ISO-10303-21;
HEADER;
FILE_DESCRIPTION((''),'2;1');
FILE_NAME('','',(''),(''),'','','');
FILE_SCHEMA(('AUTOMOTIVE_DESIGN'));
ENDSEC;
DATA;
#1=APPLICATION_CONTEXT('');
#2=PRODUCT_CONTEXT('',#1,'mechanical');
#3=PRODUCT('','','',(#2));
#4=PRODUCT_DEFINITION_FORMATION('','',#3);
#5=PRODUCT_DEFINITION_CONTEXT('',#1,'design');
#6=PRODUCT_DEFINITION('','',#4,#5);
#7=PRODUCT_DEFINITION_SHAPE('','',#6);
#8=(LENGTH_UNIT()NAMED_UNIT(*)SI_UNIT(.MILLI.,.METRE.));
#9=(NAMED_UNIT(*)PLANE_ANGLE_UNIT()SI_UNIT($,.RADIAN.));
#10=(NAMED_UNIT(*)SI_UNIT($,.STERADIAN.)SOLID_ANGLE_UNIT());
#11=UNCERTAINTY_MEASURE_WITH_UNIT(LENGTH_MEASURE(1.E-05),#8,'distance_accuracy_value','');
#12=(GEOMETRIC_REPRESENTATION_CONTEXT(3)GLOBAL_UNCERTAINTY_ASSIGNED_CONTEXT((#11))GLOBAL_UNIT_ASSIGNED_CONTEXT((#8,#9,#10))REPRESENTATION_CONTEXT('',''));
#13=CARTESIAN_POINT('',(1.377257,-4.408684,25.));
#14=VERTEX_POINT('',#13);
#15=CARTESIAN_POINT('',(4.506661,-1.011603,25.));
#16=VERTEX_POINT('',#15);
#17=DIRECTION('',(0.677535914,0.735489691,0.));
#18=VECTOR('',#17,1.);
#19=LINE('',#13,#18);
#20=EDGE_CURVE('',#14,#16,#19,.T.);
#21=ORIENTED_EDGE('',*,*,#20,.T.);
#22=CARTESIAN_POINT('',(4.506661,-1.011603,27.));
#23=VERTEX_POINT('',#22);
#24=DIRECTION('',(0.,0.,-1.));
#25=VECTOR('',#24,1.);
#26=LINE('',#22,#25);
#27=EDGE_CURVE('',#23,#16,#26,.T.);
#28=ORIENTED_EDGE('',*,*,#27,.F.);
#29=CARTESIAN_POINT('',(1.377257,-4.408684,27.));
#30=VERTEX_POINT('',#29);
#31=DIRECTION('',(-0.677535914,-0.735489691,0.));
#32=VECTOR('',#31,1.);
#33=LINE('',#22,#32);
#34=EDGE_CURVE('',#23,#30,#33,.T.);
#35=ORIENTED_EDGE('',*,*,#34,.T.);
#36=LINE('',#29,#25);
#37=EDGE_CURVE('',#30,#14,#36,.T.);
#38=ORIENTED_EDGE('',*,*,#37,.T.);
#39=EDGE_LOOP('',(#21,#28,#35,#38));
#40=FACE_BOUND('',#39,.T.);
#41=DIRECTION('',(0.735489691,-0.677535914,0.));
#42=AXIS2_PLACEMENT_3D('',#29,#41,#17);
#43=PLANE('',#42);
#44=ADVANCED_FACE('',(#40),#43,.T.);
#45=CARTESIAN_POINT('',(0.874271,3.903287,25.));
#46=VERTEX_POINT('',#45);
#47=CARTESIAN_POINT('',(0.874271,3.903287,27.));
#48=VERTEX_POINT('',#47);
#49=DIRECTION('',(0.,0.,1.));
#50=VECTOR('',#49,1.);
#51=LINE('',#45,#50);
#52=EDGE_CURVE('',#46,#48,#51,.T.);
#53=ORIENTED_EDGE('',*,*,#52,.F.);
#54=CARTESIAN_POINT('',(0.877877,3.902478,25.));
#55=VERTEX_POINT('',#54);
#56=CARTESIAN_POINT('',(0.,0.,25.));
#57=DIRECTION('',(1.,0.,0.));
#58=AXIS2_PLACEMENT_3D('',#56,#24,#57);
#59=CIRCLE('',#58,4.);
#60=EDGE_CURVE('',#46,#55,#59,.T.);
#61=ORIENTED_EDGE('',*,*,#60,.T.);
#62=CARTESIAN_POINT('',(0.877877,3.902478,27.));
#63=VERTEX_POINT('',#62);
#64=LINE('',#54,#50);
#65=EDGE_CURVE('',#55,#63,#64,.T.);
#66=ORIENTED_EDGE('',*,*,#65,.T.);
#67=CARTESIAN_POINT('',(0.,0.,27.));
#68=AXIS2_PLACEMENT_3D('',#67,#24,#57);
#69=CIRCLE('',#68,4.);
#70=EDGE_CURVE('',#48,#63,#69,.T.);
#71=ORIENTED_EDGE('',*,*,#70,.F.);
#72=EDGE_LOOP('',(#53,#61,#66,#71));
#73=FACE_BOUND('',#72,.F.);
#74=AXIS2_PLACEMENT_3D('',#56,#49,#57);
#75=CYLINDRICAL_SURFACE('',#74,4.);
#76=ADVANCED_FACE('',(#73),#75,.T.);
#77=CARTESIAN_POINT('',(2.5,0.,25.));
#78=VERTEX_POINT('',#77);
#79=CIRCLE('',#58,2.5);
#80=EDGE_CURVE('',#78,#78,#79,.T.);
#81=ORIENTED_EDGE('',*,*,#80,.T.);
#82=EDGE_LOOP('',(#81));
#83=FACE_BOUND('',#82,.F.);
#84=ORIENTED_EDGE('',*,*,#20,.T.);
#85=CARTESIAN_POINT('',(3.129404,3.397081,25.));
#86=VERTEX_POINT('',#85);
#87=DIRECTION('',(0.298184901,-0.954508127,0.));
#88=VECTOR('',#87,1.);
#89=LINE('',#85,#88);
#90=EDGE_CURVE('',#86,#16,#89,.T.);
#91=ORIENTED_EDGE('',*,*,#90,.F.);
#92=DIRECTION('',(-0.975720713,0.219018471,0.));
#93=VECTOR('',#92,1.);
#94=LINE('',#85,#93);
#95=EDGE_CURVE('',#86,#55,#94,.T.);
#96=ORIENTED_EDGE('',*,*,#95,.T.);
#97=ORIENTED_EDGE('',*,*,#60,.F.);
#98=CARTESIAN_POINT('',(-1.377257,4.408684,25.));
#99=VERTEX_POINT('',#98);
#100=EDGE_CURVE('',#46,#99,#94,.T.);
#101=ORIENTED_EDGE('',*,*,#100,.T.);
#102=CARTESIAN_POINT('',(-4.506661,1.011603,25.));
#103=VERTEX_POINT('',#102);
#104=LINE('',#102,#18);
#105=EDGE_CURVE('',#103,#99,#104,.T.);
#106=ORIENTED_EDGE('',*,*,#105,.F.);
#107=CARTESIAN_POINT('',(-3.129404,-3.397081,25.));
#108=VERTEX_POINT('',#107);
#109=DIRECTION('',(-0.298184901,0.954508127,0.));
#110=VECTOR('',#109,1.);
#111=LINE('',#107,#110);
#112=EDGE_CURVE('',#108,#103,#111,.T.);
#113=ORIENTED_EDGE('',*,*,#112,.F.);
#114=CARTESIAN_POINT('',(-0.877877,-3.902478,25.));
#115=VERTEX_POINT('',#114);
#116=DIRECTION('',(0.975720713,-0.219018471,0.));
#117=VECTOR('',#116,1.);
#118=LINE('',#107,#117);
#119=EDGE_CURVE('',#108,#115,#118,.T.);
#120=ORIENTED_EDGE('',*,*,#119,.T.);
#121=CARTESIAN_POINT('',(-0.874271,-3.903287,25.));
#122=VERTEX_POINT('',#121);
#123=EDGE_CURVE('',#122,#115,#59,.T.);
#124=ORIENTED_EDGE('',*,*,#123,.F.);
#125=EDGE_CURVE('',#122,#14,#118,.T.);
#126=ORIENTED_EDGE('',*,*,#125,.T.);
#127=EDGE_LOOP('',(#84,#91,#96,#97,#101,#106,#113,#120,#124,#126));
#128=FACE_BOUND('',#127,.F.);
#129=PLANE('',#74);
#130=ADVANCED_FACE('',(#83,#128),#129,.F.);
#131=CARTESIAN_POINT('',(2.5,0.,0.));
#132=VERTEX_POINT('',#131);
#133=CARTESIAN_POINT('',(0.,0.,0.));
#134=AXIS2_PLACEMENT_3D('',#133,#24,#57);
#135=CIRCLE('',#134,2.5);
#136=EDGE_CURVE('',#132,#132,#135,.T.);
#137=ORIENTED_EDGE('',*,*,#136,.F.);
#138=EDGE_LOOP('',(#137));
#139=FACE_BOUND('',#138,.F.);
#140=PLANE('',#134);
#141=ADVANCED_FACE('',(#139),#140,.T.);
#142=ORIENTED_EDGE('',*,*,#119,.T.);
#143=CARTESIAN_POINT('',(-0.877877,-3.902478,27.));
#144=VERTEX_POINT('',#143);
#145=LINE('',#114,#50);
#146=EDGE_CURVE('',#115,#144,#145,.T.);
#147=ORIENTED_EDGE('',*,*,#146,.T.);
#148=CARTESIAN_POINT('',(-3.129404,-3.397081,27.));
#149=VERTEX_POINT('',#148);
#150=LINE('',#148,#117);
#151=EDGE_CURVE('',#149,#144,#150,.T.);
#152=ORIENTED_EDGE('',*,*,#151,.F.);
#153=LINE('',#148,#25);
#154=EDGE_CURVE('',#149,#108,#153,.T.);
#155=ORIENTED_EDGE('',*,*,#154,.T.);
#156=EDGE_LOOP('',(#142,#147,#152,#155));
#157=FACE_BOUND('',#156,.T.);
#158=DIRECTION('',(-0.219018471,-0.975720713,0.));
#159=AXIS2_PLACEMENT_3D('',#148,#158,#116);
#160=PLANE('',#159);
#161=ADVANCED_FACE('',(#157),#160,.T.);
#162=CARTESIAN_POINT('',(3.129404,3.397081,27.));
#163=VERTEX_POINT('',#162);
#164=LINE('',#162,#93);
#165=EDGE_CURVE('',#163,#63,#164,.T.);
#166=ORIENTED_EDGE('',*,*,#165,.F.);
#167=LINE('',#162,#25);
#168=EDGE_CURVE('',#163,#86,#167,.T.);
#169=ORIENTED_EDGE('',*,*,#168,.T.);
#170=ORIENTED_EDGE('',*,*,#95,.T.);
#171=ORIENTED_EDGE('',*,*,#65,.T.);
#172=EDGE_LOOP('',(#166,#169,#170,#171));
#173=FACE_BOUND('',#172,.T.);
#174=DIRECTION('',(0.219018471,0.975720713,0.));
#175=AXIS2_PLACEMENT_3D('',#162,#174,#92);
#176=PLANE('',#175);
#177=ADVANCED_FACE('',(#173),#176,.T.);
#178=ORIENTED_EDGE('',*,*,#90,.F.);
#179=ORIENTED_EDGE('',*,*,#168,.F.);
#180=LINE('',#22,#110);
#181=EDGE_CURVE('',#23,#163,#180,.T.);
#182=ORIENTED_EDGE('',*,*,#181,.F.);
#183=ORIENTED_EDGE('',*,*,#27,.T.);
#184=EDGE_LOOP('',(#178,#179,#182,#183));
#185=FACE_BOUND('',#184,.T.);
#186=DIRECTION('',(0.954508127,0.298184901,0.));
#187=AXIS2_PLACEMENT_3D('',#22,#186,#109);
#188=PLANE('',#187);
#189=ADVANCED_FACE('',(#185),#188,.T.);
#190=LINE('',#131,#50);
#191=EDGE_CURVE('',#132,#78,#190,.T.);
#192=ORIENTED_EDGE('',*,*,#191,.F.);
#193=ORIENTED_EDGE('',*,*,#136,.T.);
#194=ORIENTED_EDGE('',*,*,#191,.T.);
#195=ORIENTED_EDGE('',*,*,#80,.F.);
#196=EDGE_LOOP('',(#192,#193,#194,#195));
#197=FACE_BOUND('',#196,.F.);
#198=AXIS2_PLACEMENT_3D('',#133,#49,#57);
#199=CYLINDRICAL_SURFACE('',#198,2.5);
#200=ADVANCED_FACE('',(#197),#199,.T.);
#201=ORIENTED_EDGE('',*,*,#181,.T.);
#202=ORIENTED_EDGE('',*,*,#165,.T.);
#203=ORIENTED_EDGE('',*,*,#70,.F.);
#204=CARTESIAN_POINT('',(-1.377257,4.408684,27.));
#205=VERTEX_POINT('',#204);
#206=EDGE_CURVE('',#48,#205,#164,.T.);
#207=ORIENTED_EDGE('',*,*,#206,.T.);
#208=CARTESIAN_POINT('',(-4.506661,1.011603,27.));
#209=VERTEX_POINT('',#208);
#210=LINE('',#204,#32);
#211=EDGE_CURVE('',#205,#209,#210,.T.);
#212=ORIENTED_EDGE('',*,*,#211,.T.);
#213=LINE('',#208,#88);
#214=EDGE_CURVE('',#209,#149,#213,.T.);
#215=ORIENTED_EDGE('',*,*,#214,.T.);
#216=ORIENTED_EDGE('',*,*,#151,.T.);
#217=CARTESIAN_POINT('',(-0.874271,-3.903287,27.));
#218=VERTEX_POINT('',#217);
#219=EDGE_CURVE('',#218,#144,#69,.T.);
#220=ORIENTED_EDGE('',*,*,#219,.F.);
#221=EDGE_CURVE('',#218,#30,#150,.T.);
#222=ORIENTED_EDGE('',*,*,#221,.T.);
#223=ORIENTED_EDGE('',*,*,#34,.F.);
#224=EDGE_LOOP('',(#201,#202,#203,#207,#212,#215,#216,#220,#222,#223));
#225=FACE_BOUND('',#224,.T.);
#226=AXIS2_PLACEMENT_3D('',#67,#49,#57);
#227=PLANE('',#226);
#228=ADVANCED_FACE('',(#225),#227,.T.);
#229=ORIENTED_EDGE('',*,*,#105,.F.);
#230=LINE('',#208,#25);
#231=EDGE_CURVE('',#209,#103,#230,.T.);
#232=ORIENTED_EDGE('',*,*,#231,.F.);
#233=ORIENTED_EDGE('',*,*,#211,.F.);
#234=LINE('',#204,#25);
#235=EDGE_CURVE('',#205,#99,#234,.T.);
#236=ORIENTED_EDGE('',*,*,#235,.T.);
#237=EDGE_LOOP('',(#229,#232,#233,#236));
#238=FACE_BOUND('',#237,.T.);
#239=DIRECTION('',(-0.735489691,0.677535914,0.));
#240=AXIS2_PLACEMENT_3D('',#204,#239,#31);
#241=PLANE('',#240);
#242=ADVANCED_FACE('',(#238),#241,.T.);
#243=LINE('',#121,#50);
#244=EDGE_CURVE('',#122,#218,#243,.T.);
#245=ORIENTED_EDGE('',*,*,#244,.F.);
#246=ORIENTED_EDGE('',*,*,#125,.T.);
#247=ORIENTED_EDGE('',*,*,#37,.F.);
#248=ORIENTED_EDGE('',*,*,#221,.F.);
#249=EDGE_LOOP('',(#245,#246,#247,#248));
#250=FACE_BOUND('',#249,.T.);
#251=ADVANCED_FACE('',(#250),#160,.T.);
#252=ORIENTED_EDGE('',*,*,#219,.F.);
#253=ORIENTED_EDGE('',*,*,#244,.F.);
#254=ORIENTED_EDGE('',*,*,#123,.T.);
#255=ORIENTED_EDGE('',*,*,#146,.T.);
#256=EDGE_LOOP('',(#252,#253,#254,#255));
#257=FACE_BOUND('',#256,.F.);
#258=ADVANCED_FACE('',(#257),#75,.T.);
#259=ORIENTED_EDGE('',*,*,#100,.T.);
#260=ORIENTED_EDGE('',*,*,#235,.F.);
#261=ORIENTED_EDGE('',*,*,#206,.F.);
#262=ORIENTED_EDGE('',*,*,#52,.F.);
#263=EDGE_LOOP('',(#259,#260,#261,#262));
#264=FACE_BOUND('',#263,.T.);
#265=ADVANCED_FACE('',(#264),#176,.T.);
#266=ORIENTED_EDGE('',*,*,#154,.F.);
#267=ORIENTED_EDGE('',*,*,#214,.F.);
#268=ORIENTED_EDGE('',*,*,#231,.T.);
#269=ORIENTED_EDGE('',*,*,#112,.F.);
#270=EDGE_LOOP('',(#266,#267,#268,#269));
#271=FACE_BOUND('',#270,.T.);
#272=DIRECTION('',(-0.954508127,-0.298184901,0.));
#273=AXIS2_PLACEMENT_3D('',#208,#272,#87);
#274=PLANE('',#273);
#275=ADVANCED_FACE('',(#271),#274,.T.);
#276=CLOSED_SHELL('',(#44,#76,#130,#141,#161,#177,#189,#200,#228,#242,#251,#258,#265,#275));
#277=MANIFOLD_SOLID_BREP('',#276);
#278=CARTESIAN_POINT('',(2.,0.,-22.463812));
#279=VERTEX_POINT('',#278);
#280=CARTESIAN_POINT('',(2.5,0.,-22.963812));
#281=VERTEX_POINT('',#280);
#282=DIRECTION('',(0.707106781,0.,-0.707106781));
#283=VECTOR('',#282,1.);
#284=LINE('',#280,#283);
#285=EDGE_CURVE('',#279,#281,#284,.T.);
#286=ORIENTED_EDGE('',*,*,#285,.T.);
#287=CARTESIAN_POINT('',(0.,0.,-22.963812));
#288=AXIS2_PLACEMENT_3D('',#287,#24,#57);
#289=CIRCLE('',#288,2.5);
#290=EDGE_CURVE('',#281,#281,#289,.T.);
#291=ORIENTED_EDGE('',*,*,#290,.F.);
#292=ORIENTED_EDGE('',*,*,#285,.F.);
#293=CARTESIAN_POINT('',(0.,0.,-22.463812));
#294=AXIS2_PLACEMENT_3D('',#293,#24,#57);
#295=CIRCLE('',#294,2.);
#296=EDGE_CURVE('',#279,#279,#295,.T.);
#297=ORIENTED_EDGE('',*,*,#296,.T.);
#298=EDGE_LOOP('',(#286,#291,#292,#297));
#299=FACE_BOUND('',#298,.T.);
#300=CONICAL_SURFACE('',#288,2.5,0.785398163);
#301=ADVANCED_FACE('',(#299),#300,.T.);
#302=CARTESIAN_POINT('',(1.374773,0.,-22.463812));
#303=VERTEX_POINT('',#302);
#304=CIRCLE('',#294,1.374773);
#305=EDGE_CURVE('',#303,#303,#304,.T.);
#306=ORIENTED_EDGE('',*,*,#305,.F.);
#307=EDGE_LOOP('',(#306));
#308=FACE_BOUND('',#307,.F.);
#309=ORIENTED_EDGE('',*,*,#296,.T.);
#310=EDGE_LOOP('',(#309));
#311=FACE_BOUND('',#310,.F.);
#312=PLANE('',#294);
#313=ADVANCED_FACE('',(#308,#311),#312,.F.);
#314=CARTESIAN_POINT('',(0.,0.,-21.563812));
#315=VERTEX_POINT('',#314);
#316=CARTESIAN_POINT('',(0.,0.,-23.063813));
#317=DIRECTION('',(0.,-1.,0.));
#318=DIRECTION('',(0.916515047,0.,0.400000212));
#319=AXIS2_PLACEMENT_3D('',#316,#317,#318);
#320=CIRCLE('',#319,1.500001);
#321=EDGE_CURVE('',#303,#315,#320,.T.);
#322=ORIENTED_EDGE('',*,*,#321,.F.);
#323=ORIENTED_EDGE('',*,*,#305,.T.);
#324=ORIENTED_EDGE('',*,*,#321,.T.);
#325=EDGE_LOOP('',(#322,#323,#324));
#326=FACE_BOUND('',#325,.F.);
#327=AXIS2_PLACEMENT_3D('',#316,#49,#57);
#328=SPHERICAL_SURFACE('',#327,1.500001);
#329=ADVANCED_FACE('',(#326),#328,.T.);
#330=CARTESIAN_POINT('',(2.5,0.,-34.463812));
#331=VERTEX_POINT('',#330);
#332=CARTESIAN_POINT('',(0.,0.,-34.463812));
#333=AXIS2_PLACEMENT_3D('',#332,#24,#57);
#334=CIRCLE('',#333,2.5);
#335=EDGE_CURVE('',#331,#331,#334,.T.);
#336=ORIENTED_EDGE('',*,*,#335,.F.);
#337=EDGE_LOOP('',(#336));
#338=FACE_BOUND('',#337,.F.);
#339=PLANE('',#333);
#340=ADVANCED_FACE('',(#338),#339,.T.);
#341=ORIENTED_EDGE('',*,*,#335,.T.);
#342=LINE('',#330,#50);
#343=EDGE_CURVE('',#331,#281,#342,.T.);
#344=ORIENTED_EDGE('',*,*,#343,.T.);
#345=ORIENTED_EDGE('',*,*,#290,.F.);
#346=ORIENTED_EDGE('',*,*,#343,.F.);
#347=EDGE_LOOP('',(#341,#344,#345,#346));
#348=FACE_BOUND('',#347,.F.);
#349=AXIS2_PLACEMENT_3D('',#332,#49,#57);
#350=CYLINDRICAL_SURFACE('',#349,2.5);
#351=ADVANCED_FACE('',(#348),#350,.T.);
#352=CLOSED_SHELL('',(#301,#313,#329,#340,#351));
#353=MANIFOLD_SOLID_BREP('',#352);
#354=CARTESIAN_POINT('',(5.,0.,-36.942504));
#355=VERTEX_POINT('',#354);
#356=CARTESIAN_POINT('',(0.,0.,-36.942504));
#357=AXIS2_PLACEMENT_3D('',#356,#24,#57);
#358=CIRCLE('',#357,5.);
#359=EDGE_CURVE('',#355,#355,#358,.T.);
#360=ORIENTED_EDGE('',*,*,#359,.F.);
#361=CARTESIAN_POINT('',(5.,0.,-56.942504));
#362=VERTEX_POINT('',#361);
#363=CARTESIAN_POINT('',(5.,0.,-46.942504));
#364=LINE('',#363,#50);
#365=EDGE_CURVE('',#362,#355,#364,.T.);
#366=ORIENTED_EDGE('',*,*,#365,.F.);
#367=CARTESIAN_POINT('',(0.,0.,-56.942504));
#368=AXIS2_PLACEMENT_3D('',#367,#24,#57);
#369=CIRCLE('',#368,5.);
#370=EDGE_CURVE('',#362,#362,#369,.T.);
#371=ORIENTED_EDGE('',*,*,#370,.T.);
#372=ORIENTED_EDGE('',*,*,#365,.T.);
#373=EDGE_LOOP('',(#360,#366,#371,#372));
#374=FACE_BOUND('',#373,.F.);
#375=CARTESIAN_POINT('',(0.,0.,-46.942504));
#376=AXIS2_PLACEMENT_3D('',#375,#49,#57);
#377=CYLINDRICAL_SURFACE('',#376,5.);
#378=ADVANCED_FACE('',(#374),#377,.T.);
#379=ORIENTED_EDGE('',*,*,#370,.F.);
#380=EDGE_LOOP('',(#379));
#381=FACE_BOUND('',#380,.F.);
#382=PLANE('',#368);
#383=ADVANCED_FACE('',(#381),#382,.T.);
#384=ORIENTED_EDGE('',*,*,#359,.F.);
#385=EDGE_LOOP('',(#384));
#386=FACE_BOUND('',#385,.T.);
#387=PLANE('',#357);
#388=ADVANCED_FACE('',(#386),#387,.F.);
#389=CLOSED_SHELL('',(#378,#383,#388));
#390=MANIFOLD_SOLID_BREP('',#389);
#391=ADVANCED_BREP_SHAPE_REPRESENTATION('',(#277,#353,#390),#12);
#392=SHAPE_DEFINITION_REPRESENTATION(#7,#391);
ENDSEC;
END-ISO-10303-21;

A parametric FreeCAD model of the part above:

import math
import FreeCAD as App
import Part
import Sketcher

V = App.Vector
Q = App.Units.Quantity


def edges_at(feature, points):
    """Names of the edges that pass closest to the given points."""
    edges = feature.Shape.Edges
    near = lambda p: min(range(len(edges)), key=lambda i: edges[i].distToShape(Part.Vertex(*p))[0])
    return sorted({f"Edge{near(p) + 1}" for p in points})

doc = App.newDocument("Part")
body = doc.addObject("PartDesign::Body", "Body")
body.AllowCompound = True

# Sketch on XZ plane
sketch1 = body.newObject("Sketcher::SketchObject", "Sketch")
sketch1.AttachmentSupport = (doc.getObject("XZ_Plane"), [""])
sketch1.MapMode = "FlatFace"
sketch1.addGeometry(Part.LineSegment(V(0, 27, 0), V(0, 0, 0)), False)
sketch1.addGeometry(Part.LineSegment(V(0, 0, 0), V(2.5, 0, 0)), False)
sketch1.addGeometry(Part.LineSegment(V(2.5, 0, 0), V(2.5, 25, 0)), False)
sketch1.addGeometry(Part.LineSegment(V(2.5, 25, 0), V(4, 25, 0)), False)
sketch1.addGeometry(Part.LineSegment(V(4, 25, 0), V(4, 27, 0)), False)
sketch1.addGeometry(Part.LineSegment(V(4, 27, 0), V(0, 27, 0)), False)
sketch1.addGeometry(Part.LineSegment(V(2.5, -22.5, 0), V(1.4, -22.5, 0)), False)
sketch1.addGeometry(Part.ArcOfCircle(Part.Circle(V(0, -23.1, 0), V(0, 0, 1), 1.5), math.radians(24), math.radians(90)), False)
sketch1.addGeometry(Part.LineSegment(V(0, -21.6, 0), V(0, -34.5, 0)), False)
sketch1.addGeometry(Part.LineSegment(V(0, -34.5, 0), V(2.5, -34.5, 0)), False)
sketch1.addGeometry(Part.LineSegment(V(2.5, -34.5, 0), V(2.5, -22.5, 0)), False)
sketch1.addGeometry(Part.LineSegment(V(0, -36.9, 0), V(0, -56.9, 0)), False)
sketch1.addGeometry(Part.LineSegment(V(0, -56.9, 0), V(5, -56.9, 0)), False)
sketch1.addGeometry(Part.LineSegment(V(5, -56.9, 0), V(5, -36.9, 0)), False)
sketch1.addGeometry(Part.LineSegment(V(5, -36.9, 0), V(0, -36.9, 0)), False)
sketch1.addConstraint(Sketcher.Constraint("Coincident", 0, 2, 1, 1))
sketch1.addConstraint(Sketcher.Constraint("Coincident", 1, 2, 2, 1))
sketch1.addConstraint(Sketcher.Constraint("Coincident", 2, 2, 3, 1))
sketch1.addConstraint(Sketcher.Constraint("Coincident", 3, 2, 4, 1))
sketch1.addConstraint(Sketcher.Constraint("Coincident", 4, 2, 5, 1))
sketch1.addConstraint(Sketcher.Constraint("Coincident", 5, 2, 0, 1))
sketch1.addConstraint(Sketcher.Constraint("Coincident", 6, 2, 7, 1))
sketch1.addConstraint(Sketcher.Constraint("Coincident", 7, 2, 8, 1))
sketch1.addConstraint(Sketcher.Constraint("Coincident", 8, 2, 9, 1))
sketch1.addConstraint(Sketcher.Constraint("Coincident", 9, 2, 10, 1))
sketch1.addConstraint(Sketcher.Constraint("Coincident", 10, 2, 6, 1))
sketch1.addConstraint(Sketcher.Constraint("Coincident", 11, 2, 12, 1))
sketch1.addConstraint(Sketcher.Constraint("Coincident", 12, 2, 13, 1))
sketch1.addConstraint(Sketcher.Constraint("Coincident", 13, 2, 14, 1))
sketch1.addConstraint(Sketcher.Constraint("Coincident", 14, 2, 11, 1))
sketch1.addConstraint(Sketcher.Constraint("Vertical", 0))
sketch1.addConstraint(Sketcher.Constraint("Horizontal", 1))
sketch1.addConstraint(Sketcher.Constraint("Vertical", 2))
sketch1.addConstraint(Sketcher.Constraint("Horizontal", 3))
sketch1.addConstraint(Sketcher.Constraint("Vertical", 4))
sketch1.addConstraint(Sketcher.Constraint("Horizontal", 5))
sketch1.addConstraint(Sketcher.Constraint("Horizontal", 6))
sketch1.addConstraint(Sketcher.Constraint("Vertical", 8))
sketch1.addConstraint(Sketcher.Constraint("Horizontal", 9))
sketch1.addConstraint(Sketcher.Constraint("Vertical", 10))
sketch1.addConstraint(Sketcher.Constraint("Vertical", 11))
sketch1.addConstraint(Sketcher.Constraint("Horizontal", 12))
sketch1.addConstraint(Sketcher.Constraint("Vertical", 13))
sketch1.addConstraint(Sketcher.Constraint("Horizontal", 14))
sketch1.addConstraint(Sketcher.Constraint("Coincident", 0, 2, -1, 1))
sketch1.addConstraint(Sketcher.Constraint("PointOnObject", 7, 3, -2))
sketch1.addConstraint(Sketcher.Constraint("PointOnObject", 7, 2, -2))
sketch1.addConstraint(Sketcher.Constraint("PointOnObject", 11, 2, -2))
sketch1.addConstraint(Sketcher.Constraint("Vertical", 2, 2, 9, 2))
sketch1.addConstraint(Sketcher.Constraint("Radius", 7, Q("1.500001 mm")))
sketch1.addConstraint(Sketcher.Constraint("DistanceX", 5, 2, 5, 1, Q("4 mm")))
sketch1.addConstraint(Sketcher.Constraint("DistanceX", 12, 1, 12, 2, Q("5 mm")))
sketch1.addConstraint(Sketcher.Constraint("DistanceY", 0, 2, 0, 1, Q("27 mm")))
sketch1.addConstraint(Sketcher.Constraint("DistanceY", 2, 1, 2, 2, Q("25 mm")))
sketch1.addConstraint(Sketcher.Constraint("DistanceY", 10, 1, 10, 2, Q("12 mm")))
sketch1.addConstraint(Sketcher.Constraint("DistanceY", 11, 2, 11, 1, Q("20 mm")))
sketch1.addConstraint(Sketcher.Constraint("DistanceX", 1, 1, 1, 2, Q("2.5 mm")))
sketch1.addConstraint(Sketcher.Constraint("DistanceY", 8, 2, 8, 1, Q("12.9 mm")))
sketch1.addConstraint(Sketcher.Constraint("DistanceY", 8, 2, -1, 1, Q("34.463812 mm")))
sketch1.addConstraint(Sketcher.Constraint("DistanceY", 11, 2, 7, 3, Q("33.878691 mm")))
revolution = body.newObject("PartDesign::Revolution", "Revolution")
revolution.Profile = sketch1
revolution.ReferenceAxis = (sketch1, ["V_Axis"])
revolution.Angle = 360

# Sketch on XY plane
sketch2 = body.newObject("Sketcher::SketchObject", "Sketch001")
sketch2.AttachmentSupport = (doc.getObject("XY_Plane"), [""])
sketch2.MapMode = "FlatFace"
sketch2.AttachmentOffset = App.Placement(V(0, 0, 27), App.Rotation())
sketch2.addGeometry(Part.LineSegment(V(1.4, -4.4, 0), V(4.5, -1, 0)), False)
sketch2.addGeometry(Part.LineSegment(V(4.5, -1, 0), V(3.1, 3.4, 0)), False)
sketch2.addGeometry(Part.LineSegment(V(3.1, 3.4, 0), V(-1.4, 4.4, 0)), False)
sketch2.addGeometry(Part.LineSegment(V(-1.4, 4.4, 0), V(-4.5, 1, 0)), False)
sketch2.addGeometry(Part.LineSegment(V(-4.5, 1, 0), V(-3.1, -3.4, 0)), False)
sketch2.addGeometry(Part.LineSegment(V(-3.1, -3.4, 0), V(1.4, -4.4, 0)), False)
sketch2.addConstraint(Sketcher.Constraint("Coincident", 0, 2, 1, 1))
sketch2.addConstraint(Sketcher.Constraint("Coincident", 1, 2, 2, 1))
sketch2.addConstraint(Sketcher.Constraint("Coincident", 2, 2, 3, 1))
sketch2.addConstraint(Sketcher.Constraint("Coincident", 3, 2, 4, 1))
sketch2.addConstraint(Sketcher.Constraint("Coincident", 4, 2, 5, 1))
sketch2.addConstraint(Sketcher.Constraint("Coincident", 5, 2, 0, 1))
sketch2.addConstraint(Sketcher.Constraint("Symmetric", 0, 2, 3, 2, -1, 1))
sketch2.addConstraint(Sketcher.Constraint("Symmetric", 1, 2, 4, 2, -1, 1))
sketch2.addConstraint(Sketcher.Constraint("Symmetric", 2, 2, 5, 2, -1, 1))
sketch2.addConstraint(Sketcher.Constraint("Equal", 0, 1))
sketch2.addConstraint(Sketcher.Constraint("Equal", 1, 2))
sketch2.addConstraint(Sketcher.Constraint("Distance", 0, Q("4.618802 mm")))
sketch2.addConstraint(Sketcher.Constraint("DistanceX", -1, 1, 0, 2, Q("4.506661 mm")))
sketch2.addConstraint(Sketcher.Constraint("DistanceY", -1, 1, 1, 2, Q("3.397081 mm")))
sketch2.addConstraint(Sketcher.Constraint("DistanceX", 2, 2, 1, 2, Q("4.506661 mm")))
pad1 = body.newObject("PartDesign::Pad", "Pad")
pad1.Profile = sketch2
pad1.Length = 2
pad1.Reversed = True
doc.recompute()

chamfer = body.newObject("PartDesign::Chamfer", "Chamfer")
chamfer.Base = (pad1, edges_at(pad1, [(-2.5, 0, -22.464)]))
chamfer.Size = 0.5

doc.recompute()
